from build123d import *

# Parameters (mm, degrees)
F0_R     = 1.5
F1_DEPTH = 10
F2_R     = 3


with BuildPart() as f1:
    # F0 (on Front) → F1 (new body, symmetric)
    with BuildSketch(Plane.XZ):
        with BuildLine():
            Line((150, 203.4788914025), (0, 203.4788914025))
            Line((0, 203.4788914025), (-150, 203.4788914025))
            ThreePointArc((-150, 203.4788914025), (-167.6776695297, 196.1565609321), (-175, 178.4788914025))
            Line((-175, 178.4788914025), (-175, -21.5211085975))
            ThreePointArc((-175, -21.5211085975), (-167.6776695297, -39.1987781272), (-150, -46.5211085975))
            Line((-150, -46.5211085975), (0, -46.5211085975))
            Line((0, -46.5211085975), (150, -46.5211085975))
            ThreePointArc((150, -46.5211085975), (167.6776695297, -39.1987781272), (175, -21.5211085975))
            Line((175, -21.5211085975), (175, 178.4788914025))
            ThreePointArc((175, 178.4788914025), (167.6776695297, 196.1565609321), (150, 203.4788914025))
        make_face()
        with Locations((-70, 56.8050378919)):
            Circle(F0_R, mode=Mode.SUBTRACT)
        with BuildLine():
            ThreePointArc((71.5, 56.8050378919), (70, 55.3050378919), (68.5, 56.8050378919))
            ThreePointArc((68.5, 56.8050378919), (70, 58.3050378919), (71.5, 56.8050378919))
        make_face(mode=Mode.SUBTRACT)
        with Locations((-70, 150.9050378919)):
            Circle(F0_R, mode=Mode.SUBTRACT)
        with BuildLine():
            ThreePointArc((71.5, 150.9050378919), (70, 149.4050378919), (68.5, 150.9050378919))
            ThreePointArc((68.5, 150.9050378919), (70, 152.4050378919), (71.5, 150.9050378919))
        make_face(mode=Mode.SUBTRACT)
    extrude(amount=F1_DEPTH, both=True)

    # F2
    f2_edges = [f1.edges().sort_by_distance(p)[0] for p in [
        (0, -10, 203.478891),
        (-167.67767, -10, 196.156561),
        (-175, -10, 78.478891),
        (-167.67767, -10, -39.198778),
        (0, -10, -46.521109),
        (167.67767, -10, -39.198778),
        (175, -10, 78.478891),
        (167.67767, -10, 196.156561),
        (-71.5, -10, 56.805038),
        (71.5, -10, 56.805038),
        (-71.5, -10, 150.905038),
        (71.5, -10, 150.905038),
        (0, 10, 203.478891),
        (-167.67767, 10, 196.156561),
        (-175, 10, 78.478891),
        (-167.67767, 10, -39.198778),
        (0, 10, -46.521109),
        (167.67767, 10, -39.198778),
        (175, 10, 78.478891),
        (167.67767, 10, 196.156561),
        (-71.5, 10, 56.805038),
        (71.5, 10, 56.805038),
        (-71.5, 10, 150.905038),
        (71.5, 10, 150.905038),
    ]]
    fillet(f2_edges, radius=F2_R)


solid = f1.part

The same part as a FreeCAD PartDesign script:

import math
import FreeCAD as App
import Part
import Sketcher

V = App.Vector
Q = App.Units.Quantity


def edges_at(feature, points):
    """Names of the edges that pass closest to the given points."""
    edges = feature.Shape.Edges
    near = lambda p: min(range(len(edges)), key=lambda i: edges[i].distToShape(Part.Vertex(*p))[0])
    return sorted({f"Edge{near(p) + 1}" for p in points})

doc = App.newDocument("Part")
body = doc.addObject("PartDesign::Body", "Body")

sketch1 = body.newObject("Sketcher::SketchObject", "Sketch")
sketch1.AttachmentSupport = (doc.getObject("XZ_Plane"), [""])
sketch1.MapMode = "FlatFace"
sketch1.addGeometry(Part.LineSegment(V(150, 203.5, 0), V(-150, 203.5, 0)), False)
sketch1.addGeometry(Part.ArcOfCircle(Part.Circle(V(-150, 178.5, 0), V(0, 0, 1), 25), math.radians(90), math.radians(180)), False)
sketch1.addGeometry(Part.LineSegment(V(-175, 178.5, 0), V(-175, -21.5, 0)), False)
sketch1.addGeometry(Part.ArcOfCircle(Part.Circle(V(-150, -21.5, 0), V(0, 0, 1), 25), math.radians(180), math.radians(270)), False)
sketch1.addGeometry(Part.LineSegment(V(-150, -46.5, 0), V(150, -46.5, 0)), False)
sketch1.addGeometry(Part.ArcOfCircle(Part.Circle(V(150, -21.5, 0), V(0, 0, 1), 25), math.radians(-90), math.radians(0)), False)
sketch1.addGeometry(Part.LineSegment(V(175, -21.5, 0), V(175, 178.5, 0)), False)
sketch1.addGeometry(Part.ArcOfCircle(Part.Circle(V(150, 178.5, 0), V(0, 0, 1), 25), math.radians(0), math.radians(90)), False)
sketch1.addGeometry(Part.Circle(V(-70, 56.8, 0), V(0, 0, 1), 1.5), False)
sketch1.addGeometry(Part.Circle(V(70, 56.8, 0), V(0, 0, 1), 1.5), False)
sketch1.addGeometry(Part.Circle(V(-70, 150.9, 0), V(0, 0, 1), 1.5), False)
sketch1.addGeometry(Part.Circle(V(70, 150.9, 0), V(0, 0, 1), 1.5), False)
sketch1.addConstraint(Sketcher.Constraint("Tangent", 0, 2, 1, 1))
sketch1.addConstraint(Sketcher.Constraint("Tangent", 1, 2, 2, 1))
sketch1.addConstraint(Sketcher.Constraint("Tangent", 2, 2, 3, 1))
sketch1.addConstraint(Sketcher.Constraint("Tangent", 3, 2, 4, 1))
sketch1.addConstraint(Sketcher.Constraint("Tangent", 4, 2, 5, 1))
sketch1.addConstraint(Sketcher.Constraint("Tangent", 5, 2, 6, 1))
sketch1.addConstraint(Sketcher.Constraint("Tangent", 6, 2, 7, 1))
sketch1.addConstraint(Sketcher.Constraint("Tangent", 7, 2, 0, 1))
sketch1.addConstraint(Sketcher.Constraint("Horizontal", 0))
sketch1.addConstraint(Sketcher.Constraint("Vertical", 2))
sketch1.addConstraint(Sketcher.Constraint("Horizontal", 4))
sketch1.addConstraint(Sketcher.Constraint("Vertical", 6))
sketch1.addConstraint(Sketcher.Constraint("Equal", 1, 3))
sketch1.addConstraint(Sketcher.Constraint("Equal", 3, 5))
sketch1.addConstraint(Sketcher.Constraint("Equal", 5, 7))
sketch1.addConstraint(Sketcher.Constraint("Equal", 8, 9))
sketch1.addConstraint(Sketcher.Constraint("Equal", 9, 10))
sketch1.addConstraint(Sketcher.Constraint("Equal", 10, 11))
sketch1.addConstraint(Sketcher.Constraint("Symmetric", 8, 3, 9, 3, -2))
sketch1.addConstraint(Sketcher.Constraint("Symmetric", 10, 3, 11, 3, -2))
sketch1.addConstraint(Sketcher.Constraint("Vertical", 8, 3, 10, 3))
sketch1.addConstraint(Sketcher.Constraint("Diameter", 8, Q("3 mm")))
sketch1.addConstraint(Sketcher.Constraint("Radius", 1, Q("25 mm")))
sketch1.addConstraint(Sketcher.Constraint("DistanceX", 0, 2, 0, 1, Q("300 mm")))
sketch1.addConstraint(Sketcher.Constraint("DistanceY", 2, 2, 2, 1, Q("200 mm")))
sketch1.addConstraint(Sketcher.Constraint("DistanceX", 1, 3, -1, 1, Q("150 mm")))
sketch1.addConstraint(Sketcher.Constraint("DistanceX", 8, 3, -1, 1, Q("70 mm")))
sketch1.addConstraint(Sketcher.Constraint("DistanceY", 8, 3, 10, 3, Q("94.1 mm")))
sketch1.addConstraint(Sketcher.Constraint("DistanceY", -1, 1, 1, 3, Q("178.478891 mm")))
sketch1.addConstraint(Sketcher.Constraint("DistanceY", -1, 1, 8, 3, Q("56.805038 mm")))
pad1 = body.newObject("PartDesign::Pad", "Pad")
pad1.Profile = sketch1
pad1.Length = 20
pad1.Midplane = True
doc.recompute()

fillet = body.newObject("PartDesign::Fillet", "Fillet")
fillet.Base = (pad1, edges_at(pad1, [
    (0, -10, 203.479),
    (-167.678, -10, 196.157),
    (-175, -10, 78.479),
    (-167.678, -10, -39.199),
    (0, -10, -46.521),
    (167.678, -10, -39.199),
    (175, -10, 78.479),
    (167.678, -10, 196.157),
    (-71.5, -10, 56.805),
    (71.5, -10, 56.805),
    (-71.5, -10, 150.905),
    (71.5, -10, 150.905),
    (0, 10, 203.479),
    (-167.678, 10, 196.157),
    (-175, 10, 78.479),
    (-167.678, 10, -39.199),
    (0, 10, -46.521),
    (167.678, 10, -39.199),
    (175, 10, 78.479),
    (167.678, 10, 196.157),
    (-71.5, 10, 56.805),
    (71.5, 10, 56.805),
    (-71.5, 10, 150.905),
    (71.5, 10, 150.905),
]))
fillet.Radius = 3

doc.recompute()
